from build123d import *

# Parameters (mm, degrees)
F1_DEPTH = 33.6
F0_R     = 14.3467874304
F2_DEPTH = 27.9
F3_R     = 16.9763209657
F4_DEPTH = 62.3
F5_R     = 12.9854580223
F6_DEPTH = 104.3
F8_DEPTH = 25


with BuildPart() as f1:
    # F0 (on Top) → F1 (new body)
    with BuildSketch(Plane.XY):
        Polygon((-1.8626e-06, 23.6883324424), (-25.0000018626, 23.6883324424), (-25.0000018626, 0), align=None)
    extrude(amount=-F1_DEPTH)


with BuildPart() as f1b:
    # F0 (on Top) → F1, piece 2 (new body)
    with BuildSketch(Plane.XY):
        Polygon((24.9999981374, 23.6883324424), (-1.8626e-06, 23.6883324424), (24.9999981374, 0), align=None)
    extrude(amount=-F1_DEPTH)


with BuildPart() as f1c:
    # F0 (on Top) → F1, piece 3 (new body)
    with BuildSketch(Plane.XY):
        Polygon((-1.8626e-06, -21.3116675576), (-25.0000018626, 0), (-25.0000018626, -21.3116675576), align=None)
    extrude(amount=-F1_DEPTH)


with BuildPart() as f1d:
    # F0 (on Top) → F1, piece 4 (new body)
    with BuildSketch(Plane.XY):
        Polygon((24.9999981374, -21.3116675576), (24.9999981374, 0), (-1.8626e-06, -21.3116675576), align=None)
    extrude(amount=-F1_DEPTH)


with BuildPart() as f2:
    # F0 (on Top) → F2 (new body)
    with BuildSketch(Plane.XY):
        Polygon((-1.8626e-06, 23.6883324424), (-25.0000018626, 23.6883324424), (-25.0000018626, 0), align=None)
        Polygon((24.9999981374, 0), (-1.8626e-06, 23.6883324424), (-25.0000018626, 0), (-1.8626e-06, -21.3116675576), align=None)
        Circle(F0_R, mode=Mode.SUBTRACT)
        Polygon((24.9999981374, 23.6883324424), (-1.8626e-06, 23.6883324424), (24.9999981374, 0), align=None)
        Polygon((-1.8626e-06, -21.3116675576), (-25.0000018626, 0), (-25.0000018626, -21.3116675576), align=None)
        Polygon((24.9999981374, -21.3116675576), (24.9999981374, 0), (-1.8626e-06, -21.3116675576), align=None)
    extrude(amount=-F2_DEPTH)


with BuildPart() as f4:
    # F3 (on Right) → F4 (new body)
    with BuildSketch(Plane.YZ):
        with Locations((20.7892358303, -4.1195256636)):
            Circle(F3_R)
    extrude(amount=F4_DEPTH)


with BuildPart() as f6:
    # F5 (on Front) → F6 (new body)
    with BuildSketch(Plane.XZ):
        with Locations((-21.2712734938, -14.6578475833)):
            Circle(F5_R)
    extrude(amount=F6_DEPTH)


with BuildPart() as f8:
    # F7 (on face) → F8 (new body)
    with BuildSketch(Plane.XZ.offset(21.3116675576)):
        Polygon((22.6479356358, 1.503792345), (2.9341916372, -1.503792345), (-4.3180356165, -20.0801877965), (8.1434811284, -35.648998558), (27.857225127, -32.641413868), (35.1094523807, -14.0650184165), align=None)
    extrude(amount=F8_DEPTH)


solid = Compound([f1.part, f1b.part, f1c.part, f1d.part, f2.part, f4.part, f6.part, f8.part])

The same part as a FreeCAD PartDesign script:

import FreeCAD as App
import Part
import Sketcher
Q = App.Units.Quantity


def add_polygon(sketch, points):
    """Adds a closed chain of lines whose ends are joined by coincident constraints."""
    first, n = sketch.GeometryCount, len(points)
    for a, b in zip(points, points[1:] + points[:1]):
        sketch.addGeometry(Part.LineSegment(App.Vector(*a, 0), App.Vector(*b, 0)), False)
    for i in range(n):
        sketch.addConstraint(Sketcher.Constraint("Coincident", first + i, 2, first + (i + 1) % n, 1))

doc = App.newDocument("Part")
body = doc.addObject("PartDesign::Body", "Body")

# Sketch on XY plane
sketch1 = body.newObject("Sketcher::SketchObject", "Sketch")
sketch1.AttachmentSupport = (doc.getObject("XY_Plane"), [""])
sketch1.MapMode = "FlatFace"
add_polygon(sketch1, [(-0.000002, 23.688332), (-25.000002, 23.688332), (-25.000002, 0)])  # lines 0-2
sketch1.addConstraint([
    Sketcher.Constraint("Horizontal", 0),
    Sketcher.Constraint("Vertical", 1),
    Sketcher.Constraint("PointOnObject", 1, 2, -1),
    Sketcher.Constraint("PointOnObject", 2, 2, -2),
    Sketcher.Constraint("DistanceX", 0, 2, 0, 1, Q("25 mm")),
    Sketcher.Constraint("Distance", 2, Q("34.440341 mm")),
])
pad1 = body.newObject("PartDesign::Pad", "Pad")
pad1.Profile = sketch1
pad1.Length = 33.6
pad1.Reversed = True
body2 = doc.addObject("PartDesign::Body", "Body001")

# Sketch on XY plane
sketch2 = body2.newObject("Sketcher::SketchObject", "Sketch001")
sketch2.AttachmentSupport = (doc.getObject("XY_Plane001"), [""])
sketch2.MapMode = "FlatFace"
add_polygon(sketch2, [(24.999998, 23.688332), (-0.000002, 23.688332), (24.999998, 0)])  # lines 0-2
sketch2.addConstraint([
    Sketcher.Constraint("Horizontal", 0),
    Sketcher.Constraint("Vertical", 2),
    Sketcher.Constraint("PointOnObject", 0, 2, -2),
    Sketcher.Constraint("PointOnObject", 1, 2, -1),
    Sketcher.Constraint("DistanceX", 0, 2, 0, 1, Q("25 mm")),
    Sketcher.Constraint("Distance", 1, Q("34.440341 mm")),
])
pad2 = body2.newObject("PartDesign::Pad", "Pad001")
pad2.Profile = sketch2
pad2.Length = 33.6
pad2.Reversed = True
body3 = doc.addObject("PartDesign::Body", "Body002")

# Sketch on XY plane
sketch3 = body3.newObject("Sketcher::SketchObject", "Sketch002")
sketch3.AttachmentSupport = (doc.getObject("XY_Plane002"), [""])
sketch3.MapMode = "FlatFace"
add_polygon(sketch3, [(-0.000002, -21.311668), (-25.000002, 0), (-25.000002, -21.311668)])  # lines 0-2
sketch3.addConstraint([
    Sketcher.Constraint("Vertical", 1),
    Sketcher.Constraint("Horizontal", 2),
    Sketcher.Constraint("PointOnObject", 0, 2, -1),
    Sketcher.Constraint("PointOnObject", 2, 2, -2),
    Sketcher.Constraint("DistanceX", 2, 1, 2, 2, Q("25 mm")),
    Sketcher.Constraint("DistanceY", 1, 2, 1, 1, Q("21.311668 mm")),
])
pad3 = body3.newObject("PartDesign::Pad", "Pad002")
pad3.Profile = sketch3
pad3.Length = 33.6
pad3.Reversed = True
body4 = doc.addObject("PartDesign::Body", "Body003")

# Sketch on XY plane
sketch4 = body4.newObject("Sketcher::SketchObject", "Sketch003")
sketch4.AttachmentSupport = (doc.getObject("XY_Plane003"), [""])
sketch4.MapMode = "FlatFace"
add_polygon(sketch4, [(24.999998, -21.311668), (24.999998, 0), (-0.000002, -21.311668)])  # lines 0-2
sketch4.addConstraint([
    Sketcher.Constraint("Vertical", 0),
    Sketcher.Constraint("Horizontal", 2),
    Sketcher.Constraint("PointOnObject", 0, 2, -1),
    Sketcher.Constraint("PointOnObject", 1, 2, -2),
    Sketcher.Constraint("DistanceX", 2, 1, 2, 2, Q("25 mm")),
    Sketcher.Constraint("DistanceY", 0, 1, 0, 2, Q("21.311668 mm")),
])
pad4 = body4.newObject("PartDesign::Pad", "Pad003")
pad4.Profile = sketch4
pad4.Length = 33.6
pad4.Reversed = True
body5 = doc.addObject("PartDesign::Body", "Body004")

# Sketch on XY plane
sketch5 = body5.newObject("Sketcher::SketchObject", "Sketch004")
sketch5.AttachmentSupport = (doc.getObject("XY_Plane004"), [""])
sketch5.MapMode = "FlatFace"
add_polygon(sketch5, [(-25.000002, 23.688332), (-25.000002, -21.311668), (24.999998, -21.311668), (24.999998, 23.688332)])  # lines 0-3
sketch5.addGeometry(Part.Circle(App.Vector(0, 0, 0), App.Vector(0, 0, 1), 14.346787), False)  # 4
sketch5.addConstraint([
    Sketcher.Constraint("Vertical", 0),
    Sketcher.Constraint("Horizontal", 1),
    Sketcher.Constraint("Vertical", 2),
    Sketcher.Constraint("Horizontal", 3),
    Sketcher.Constraint("Coincident", 4, 3, -1, 1),
    Sketcher.Constraint("DistanceX", 1, 1, 1, 2, Q("50 mm")),
    Sketcher.Constraint("DistanceY", 0, 2, 0, 1, Q("45 mm")),
    Sketcher.Constraint("DistanceX", 0, 2, -1, 1, Q("25.000002 mm")),
    Sketcher.Constraint("Diameter", 4, Q("28.693575 mm")),
    Sketcher.Constraint("DistanceY", 0, 2, -1, 1, Q("21.311668 mm")),
])
pad5 = body5.newObject("PartDesign::Pad", "Pad004")
pad5.Profile = sketch5
pad5.Length = 27.9
pad5.Reversed = True
body6 = doc.addObject("PartDesign::Body", "Body005")

# Sketch on YZ plane
sketch6 = body6.newObject("Sketcher::SketchObject", "Sketch005")
sketch6.AttachmentSupport = (doc.getObject("YZ_Plane005"), [""])
sketch6.MapMode = "FlatFace"
sketch6.addGeometry(Part.Circle(App.Vector(20.789236, -4.119526, 0), App.Vector(0, 0, 1), 16.976321), False)
sketch6.addConstraint([
    Sketcher.Constraint("Diameter", 0, Q("33.952642 mm")),
    Sketcher.Constraint("DistanceX", -1, 1, 0, 3, Q("20.789236 mm")),
    Sketcher.Constraint("DistanceY", 0, 3, -1, 1, Q("4.119526 mm")),
])
pad6 = body6.newObject("PartDesign::Pad", "Pad005")
pad6.Profile = sketch6
pad6.Length = 62.3
body7 = doc.addObject("PartDesign::Body", "Body006")

# Sketch on XZ plane
sketch7 = body7.newObject("Sketcher::SketchObject", "Sketch006")
sketch7.AttachmentSupport = (doc.getObject("XZ_Plane006"), [""])
sketch7.MapMode = "FlatFace"
sketch7.addGeometry(Part.Circle(App.Vector(-21.271273, -14.657848, 0), App.Vector(0, 0, 1), 12.985458), False)
sketch7.addConstraint([
    Sketcher.Constraint("Diameter", 0, Q("25.970916 mm")),
    Sketcher.Constraint("DistanceX", 0, 3, -1, 1, Q("21.271273 mm")),
    Sketcher.Constraint("DistanceY", 0, 3, -1, 1, Q("14.657848 mm")),
])
pad7 = body7.newObject("PartDesign::Pad", "Pad006")
pad7.Profile = sketch7
pad7.Length = 104.3
body8 = doc.addObject("PartDesign::Body", "Body007")

# Sketch on XZ plane
sketch8 = body8.newObject("Sketcher::SketchObject", "Sketch007")
sketch8.AttachmentSupport = (doc.getObject("XZ_Plane007"), [""])
sketch8.MapMode = "FlatFace"
sketch8.AttachmentOffset = App.Placement(App.Vector(0, 0, 21.311668), App.Rotation())
add_polygon(sketch8, [(22.647936, 1.503792), (2.934192, -1.503792), (-4.318036, -20.080188), (8.143481, -35.648999), (27.857225, -32.641414), (35.109452, -14.065018)])  # lines 0-5
sketch8.addConstraint([
    Sketcher.Constraint("Parallel", 0, 3),
    Sketcher.Constraint("Parallel", 1, 4),
    Sketcher.Constraint("Parallel", 2, 5),
    Sketcher.Constraint("Equal", 0, 1),
    Sketcher.Constraint("Equal", 1, 2),
    Sketcher.Constraint("Equal", 2, 3),
    Sketcher.Constraint("DistanceY", 2, 2, -1, 1, Q("35.648999 mm")),
    Sketcher.Constraint("DistanceX", -1, 1, 0, 2, Q("2.934192 mm")),
    Sketcher.Constraint("DistanceX", -1, 1, 2, 2, Q("8.143481 mm")),
    Sketcher.Constraint("DistanceY", 4, 2, -1, 1, Q("14.065018 mm")),
    Sketcher.Constraint("DistanceY", 2, 2, 1, 2, Q("15.568811 mm")),
    Sketcher.Constraint("DistanceX", 1, 2, 3, 2, Q("32.175261 mm")),
])
pad8 = body8.newObject("PartDesign::Pad", "Pad007")
pad8.Profile = sketch8
pad8.Length = 25

doc.recompute()
